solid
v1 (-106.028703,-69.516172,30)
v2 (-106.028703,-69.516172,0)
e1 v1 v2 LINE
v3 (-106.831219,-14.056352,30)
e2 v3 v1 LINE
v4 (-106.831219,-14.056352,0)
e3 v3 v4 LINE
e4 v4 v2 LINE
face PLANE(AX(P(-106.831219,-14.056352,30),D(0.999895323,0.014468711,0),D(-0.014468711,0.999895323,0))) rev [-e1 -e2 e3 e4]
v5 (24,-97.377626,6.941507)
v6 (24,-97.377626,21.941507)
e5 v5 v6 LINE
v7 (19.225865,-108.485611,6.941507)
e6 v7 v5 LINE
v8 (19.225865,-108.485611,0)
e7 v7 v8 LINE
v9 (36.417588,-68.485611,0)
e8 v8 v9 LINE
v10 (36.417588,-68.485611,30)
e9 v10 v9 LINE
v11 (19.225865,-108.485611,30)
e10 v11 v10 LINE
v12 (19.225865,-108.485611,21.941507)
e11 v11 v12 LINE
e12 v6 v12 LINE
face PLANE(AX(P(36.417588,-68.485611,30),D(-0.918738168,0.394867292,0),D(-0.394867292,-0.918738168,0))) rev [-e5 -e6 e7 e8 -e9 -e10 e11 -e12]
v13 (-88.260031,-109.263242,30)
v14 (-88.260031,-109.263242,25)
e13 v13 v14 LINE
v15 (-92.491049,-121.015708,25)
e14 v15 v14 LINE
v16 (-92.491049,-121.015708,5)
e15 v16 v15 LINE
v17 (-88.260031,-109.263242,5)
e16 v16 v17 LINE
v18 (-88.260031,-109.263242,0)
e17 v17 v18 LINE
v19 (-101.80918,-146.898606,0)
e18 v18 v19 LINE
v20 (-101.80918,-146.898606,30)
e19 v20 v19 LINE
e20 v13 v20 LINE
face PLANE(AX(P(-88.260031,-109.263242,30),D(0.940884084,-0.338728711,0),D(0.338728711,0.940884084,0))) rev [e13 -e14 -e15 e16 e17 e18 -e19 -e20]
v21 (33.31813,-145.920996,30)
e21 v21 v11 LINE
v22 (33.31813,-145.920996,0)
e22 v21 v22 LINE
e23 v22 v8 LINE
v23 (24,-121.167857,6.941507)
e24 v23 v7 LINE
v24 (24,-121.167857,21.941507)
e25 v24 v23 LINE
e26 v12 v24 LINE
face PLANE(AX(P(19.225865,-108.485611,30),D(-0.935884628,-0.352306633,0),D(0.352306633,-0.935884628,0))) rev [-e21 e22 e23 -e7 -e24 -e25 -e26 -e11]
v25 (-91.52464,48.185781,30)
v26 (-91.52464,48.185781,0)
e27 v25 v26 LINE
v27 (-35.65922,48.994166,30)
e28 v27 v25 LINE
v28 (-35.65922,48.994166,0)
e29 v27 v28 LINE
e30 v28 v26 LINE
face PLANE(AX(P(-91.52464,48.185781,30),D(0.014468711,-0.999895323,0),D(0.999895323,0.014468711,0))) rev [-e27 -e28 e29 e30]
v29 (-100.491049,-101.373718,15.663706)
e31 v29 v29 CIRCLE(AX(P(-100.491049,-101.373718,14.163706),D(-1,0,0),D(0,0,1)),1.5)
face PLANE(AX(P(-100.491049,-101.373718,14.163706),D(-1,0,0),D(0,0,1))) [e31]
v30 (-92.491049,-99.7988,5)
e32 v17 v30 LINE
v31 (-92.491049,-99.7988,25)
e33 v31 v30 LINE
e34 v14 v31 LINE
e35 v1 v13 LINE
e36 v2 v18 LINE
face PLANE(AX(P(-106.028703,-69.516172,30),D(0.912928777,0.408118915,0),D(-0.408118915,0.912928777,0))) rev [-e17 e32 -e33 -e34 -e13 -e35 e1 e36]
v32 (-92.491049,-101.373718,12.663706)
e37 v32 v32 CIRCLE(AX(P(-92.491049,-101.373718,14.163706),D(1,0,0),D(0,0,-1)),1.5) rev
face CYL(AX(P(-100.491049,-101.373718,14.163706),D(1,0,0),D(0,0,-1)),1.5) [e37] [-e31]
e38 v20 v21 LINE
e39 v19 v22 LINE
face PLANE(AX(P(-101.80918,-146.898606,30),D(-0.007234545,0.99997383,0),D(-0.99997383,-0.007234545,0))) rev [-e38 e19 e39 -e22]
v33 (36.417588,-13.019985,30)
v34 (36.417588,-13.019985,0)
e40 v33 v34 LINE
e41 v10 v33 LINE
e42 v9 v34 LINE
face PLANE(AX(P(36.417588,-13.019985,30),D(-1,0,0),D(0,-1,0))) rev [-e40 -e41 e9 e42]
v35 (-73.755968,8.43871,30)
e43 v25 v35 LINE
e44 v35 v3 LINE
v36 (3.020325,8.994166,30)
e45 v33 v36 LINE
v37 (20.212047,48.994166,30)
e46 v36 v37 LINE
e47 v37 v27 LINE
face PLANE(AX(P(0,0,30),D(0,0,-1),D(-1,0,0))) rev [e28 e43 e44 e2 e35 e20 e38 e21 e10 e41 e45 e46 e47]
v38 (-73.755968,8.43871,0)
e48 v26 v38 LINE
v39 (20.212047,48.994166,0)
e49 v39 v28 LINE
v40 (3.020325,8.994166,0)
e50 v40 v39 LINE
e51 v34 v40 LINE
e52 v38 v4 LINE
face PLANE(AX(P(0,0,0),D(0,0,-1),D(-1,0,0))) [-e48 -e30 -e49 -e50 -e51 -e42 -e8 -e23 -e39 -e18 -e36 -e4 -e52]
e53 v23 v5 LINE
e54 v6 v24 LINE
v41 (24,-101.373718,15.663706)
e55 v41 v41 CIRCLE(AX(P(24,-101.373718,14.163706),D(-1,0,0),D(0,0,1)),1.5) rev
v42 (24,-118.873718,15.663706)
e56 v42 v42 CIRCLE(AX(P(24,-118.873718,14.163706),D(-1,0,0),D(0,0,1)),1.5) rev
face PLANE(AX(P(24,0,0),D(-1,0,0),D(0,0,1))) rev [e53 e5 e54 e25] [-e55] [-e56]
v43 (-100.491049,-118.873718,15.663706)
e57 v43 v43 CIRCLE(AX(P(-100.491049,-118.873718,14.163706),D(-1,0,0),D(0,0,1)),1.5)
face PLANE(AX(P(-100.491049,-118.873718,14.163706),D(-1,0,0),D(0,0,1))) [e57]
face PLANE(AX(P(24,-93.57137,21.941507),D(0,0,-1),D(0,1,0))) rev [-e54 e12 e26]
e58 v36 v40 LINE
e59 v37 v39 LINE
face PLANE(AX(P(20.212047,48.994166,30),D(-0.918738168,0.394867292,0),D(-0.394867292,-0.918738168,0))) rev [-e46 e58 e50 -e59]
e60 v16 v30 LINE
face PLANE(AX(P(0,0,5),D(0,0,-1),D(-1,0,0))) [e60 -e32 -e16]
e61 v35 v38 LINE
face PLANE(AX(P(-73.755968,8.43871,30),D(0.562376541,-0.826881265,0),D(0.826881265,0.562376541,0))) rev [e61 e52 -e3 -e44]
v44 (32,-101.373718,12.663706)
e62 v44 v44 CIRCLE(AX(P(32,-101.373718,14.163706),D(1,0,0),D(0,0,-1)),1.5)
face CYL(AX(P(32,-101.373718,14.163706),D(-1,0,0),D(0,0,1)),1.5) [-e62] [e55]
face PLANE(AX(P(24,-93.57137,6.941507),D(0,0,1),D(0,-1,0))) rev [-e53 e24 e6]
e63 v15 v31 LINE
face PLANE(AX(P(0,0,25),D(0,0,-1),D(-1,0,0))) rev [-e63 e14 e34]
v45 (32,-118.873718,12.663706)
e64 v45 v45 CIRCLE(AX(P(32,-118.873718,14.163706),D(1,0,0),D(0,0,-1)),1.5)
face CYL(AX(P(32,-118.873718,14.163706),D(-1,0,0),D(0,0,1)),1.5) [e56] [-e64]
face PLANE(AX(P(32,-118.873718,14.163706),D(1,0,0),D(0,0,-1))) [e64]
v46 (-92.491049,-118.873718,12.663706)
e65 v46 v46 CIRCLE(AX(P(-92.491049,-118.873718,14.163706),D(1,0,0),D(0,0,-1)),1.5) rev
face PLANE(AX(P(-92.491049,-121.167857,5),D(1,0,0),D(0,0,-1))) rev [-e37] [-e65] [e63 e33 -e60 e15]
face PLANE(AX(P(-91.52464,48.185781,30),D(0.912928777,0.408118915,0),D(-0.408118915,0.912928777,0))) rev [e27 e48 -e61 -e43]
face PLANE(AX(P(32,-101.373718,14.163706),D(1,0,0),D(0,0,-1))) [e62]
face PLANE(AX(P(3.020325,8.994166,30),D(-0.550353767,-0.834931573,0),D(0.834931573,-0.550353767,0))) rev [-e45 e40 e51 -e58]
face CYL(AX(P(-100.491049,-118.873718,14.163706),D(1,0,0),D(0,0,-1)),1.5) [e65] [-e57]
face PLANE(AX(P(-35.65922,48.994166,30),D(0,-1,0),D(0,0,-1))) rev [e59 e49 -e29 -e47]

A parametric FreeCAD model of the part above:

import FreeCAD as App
import Part
import Sketcher
Q = App.Units.Quantity

doc = App.newDocument("Part")
params = doc.addObject("Spreadsheet::Sheet", "Params")
for row, (alias, value) in enumerate([
    ("sketch1_length", "40 mm"),
    ("pad1_length", "30 mm"),
    ("sketch2_width", "30 mm"),
    ("sketch2_height", "15 mm"),
    ("pad2_length", "24 mm"),
    ("pad3_length", "20 mm"),
    ("sketch4_diameter", "3 mm"),
    ("pad4_length", "16 mm"),
    ("sketch5_diameter", "3 mm"),
    ("pad5_length", "16 mm"),
], start=1):
    params.set(f"A{row}", alias)
    params.set(f"B{row}", "=" + value)
    params.setAlias(f"B{row}", alias)

body = doc.addObject("PartDesign::Body", "Body")

sketch1 = body.newObject("Sketcher::SketchObject", "Sketch")
sketch1.AttachmentSupport = (doc.getObject("XY_Plane"), [""])
sketch1.MapMode = "FlatFace"
sketch1.addGeometry([
    Part.LineSegment(App.Vector(20, 49, 0), App.Vector(-36, 49, 0)),
    Part.LineSegment(App.Vector(-36, 49, 0), App.Vector(-92, 48, 0)),
    Part.LineSegment(App.Vector(-92, 48, 0), App.Vector(-74, 8, 0)),
    Part.LineSegment(App.Vector(-74, 8, 0), App.Vector(-107, -14, 0)),
    Part.LineSegment(App.Vector(-107, -14, 0), App.Vector(-106, -70, 0)),
    Part.LineSegment(App.Vector(-106, -70, 0), App.Vector(-88, -109, 0)),
    Part.LineSegment(App.Vector(-88, -109, 0), App.Vector(-102, -147, 0)),
    Part.LineSegment(App.Vector(-102, -147, 0), App.Vector(33, -146, 0)),
    Part.LineSegment(App.Vector(33, -146, 0), App.Vector(19, -108, 0)),
    Part.LineSegment(App.Vector(19, -108, 0), App.Vector(36, -68, 0)),
    Part.LineSegment(App.Vector(36, -68, 0), App.Vector(36, -13, 0)),
    Part.LineSegment(App.Vector(36, -13, 0), App.Vector(3, 9, 0)),
    Part.LineSegment(App.Vector(3, 9, 0), App.Vector(20, 49, 0)),
], False)
sketch1.addConstraint([
    Sketcher.Constraint("Coincident", 0, 2, 1, 1),
    Sketcher.Constraint("Coincident", 1, 2, 2, 1),
    Sketcher.Constraint("Coincident", 2, 2, 3, 1),
    Sketcher.Constraint("Coincident", 3, 2, 4, 1),
    Sketcher.Constraint("Coincident", 4, 2, 5, 1),
    Sketcher.Constraint("Coincident", 5, 2, 6, 1),
    Sketcher.Constraint("Coincident", 6, 2, 7, 1),
    Sketcher.Constraint("Coincident", 7, 2, 8, 1),
    Sketcher.Constraint("Coincident", 8, 2, 9, 1),
    Sketcher.Constraint("Coincident", 9, 2, 10, 1),
    Sketcher.Constraint("Coincident", 10, 2, 11, 1),
    Sketcher.Constraint("Coincident", 11, 2, 12, 1),
    Sketcher.Constraint("Coincident", 12, 2, 0, 1),
    Sketcher.Constraint("Horizontal", 0),
    Sketcher.Constraint("Vertical", 10),
    Sketcher.Constraint("Perpendicular", 1, 4),
    Sketcher.Constraint("Parallel", 2, 5),
    Sketcher.Constraint("Parallel", 9, 12),
    Sketcher.Constraint("Equal", 2, 5),
    Sketcher.Constraint("Equal", 3, 6),
    Sketcher.Constraint("Equal", 6, 8),
    Sketcher.Constraint("Equal", 5, 9),
    Sketcher.Constraint("Equal", 8, 11),
    Sketcher.Constraint("Equal", 9, 12),
    Sketcher.Constraint("Distance", 3, Q("40 mm")),
    Sketcher.Constraint("DistanceY", 8, 2, 9, 2, Q("40 mm")),
    Sketcher.Constraint("DistanceX", 3, 2, 0, 2, Q("71.171998 mm")),
    Sketcher.Constraint("DistanceX", 2, 2, 7, 2, Q("107.074099 mm")),
    Sketcher.Constraint("DistanceX", 0, 2, 0, 1, Q("55.871268 mm")),
    Sketcher.Constraint("DistanceY", 10, 1, 10, 2, Q("55.465626 mm")),
    Sketcher.Constraint("DistanceX", 0, 2, -1, 1, Q("35.65922 mm")),
    Sketcher.Constraint("DistanceX", 1, 2, -1, 1, Q("91.52464 mm")),
    Sketcher.Constraint("DistanceY", -1, 1, 1, 2, Q("48.185781 mm")),
    Sketcher.Constraint("DistanceX", 2, 2, -1, 1, Q("73.755968 mm")),
    Sketcher.Constraint("DistanceY", -1, 1, 2, 2, Q("8.43871 mm")),
    Sketcher.Constraint("DistanceY", 4, 2, -1, 1, Q("69.516172 mm")),
    Sketcher.Constraint("DistanceX", 5, 2, -1, 1, Q("88.260031 mm")),
    Sketcher.Constraint("DistanceX", 6, 2, -1, 1, Q("101.80918 mm")),
    Sketcher.Constraint("DistanceY", 8, 2, -1, 1, Q("108.485611 mm")),
])
sketch1.setExpression("Constraints[24]", "Params.sketch1_length")
pad1 = body.newObject("PartDesign::Pad", "Pad")
pad1.Profile = sketch1
pad1.setExpression("Length", "Params.pad1_length")

sketch2 = body.newObject("Sketcher::SketchObject", "Sketch001")
sketch2.AttachmentSupport = (doc.getObject("YZ_Plane"), [""])
sketch2.MapMode = "FlatFace"
sketch2.addGeometry([
    Part.LineSegment(App.Vector(-94, 22, 0), App.Vector(-124, 22, 0)),
    Part.LineSegment(App.Vector(-124, 22, 0), App.Vector(-124, 7, 0)),
    Part.LineSegment(App.Vector(-124, 7, 0), App.Vector(-94, 7, 0)),
    Part.LineSegment(App.Vector(-94, 7, 0), App.Vector(-94, 22, 0)),
], False)
sketch2.addConstraint([
    Sketcher.Constraint("Coincident", 0, 2, 1, 1),
    Sketcher.Constraint("Coincident", 1, 2, 2, 1),
    Sketcher.Constraint("Coincident", 2, 2, 3, 1),
    Sketcher.Constraint("Coincident", 3, 2, 0, 1),
    Sketcher.Constraint("Horizontal", 0),
    Sketcher.Constraint("Vertical", 1),
    Sketcher.Constraint("Horizontal", 2),
    Sketcher.Constraint("Vertical", 3),
    Sketcher.Constraint("DistanceX", 0, 2, 0, 1, Q("30 mm")),
    Sketcher.Constraint("DistanceY", 1, 2, 1, 1, Q("15 mm")),
    Sketcher.Constraint("DistanceX", 0, 2, -1, 1, Q("123.57137 mm")),
    Sketcher.Constraint("DistanceY", -1, 1, 0, 2, Q("21.941507 mm")),
])
sketch2.setExpression("Constraints[8]", "Params.sketch2_width")
sketch2.setExpression("Constraints[9]", "Params.sketch2_height")
pad2 = body.newObject("PartDesign::Pad", "Pad001")
pad2.Profile = sketch2
pad2.setExpression("Length", "Params.pad2_length")

sketch3 = body.newObject("Sketcher::SketchObject", "Sketch002")
sketch3.AttachmentSupport = (doc.getObject("XY_Plane"), [""])
sketch3.MapMode = "FlatFace"
sketch3.AttachmentOffset = App.Placement(App.Vector(0, 0, 15), App.Rotation())
sketch3.addGeometry([
    Part.LineSegment(App.Vector(-92, -97, 0), App.Vector(-88, -108, 0)),
    Part.LineSegment(App.Vector(-88, -108, 0), App.Vector(-92, -121, 0)),
    Part.LineSegment(App.Vector(-92, -121, 0), App.Vector(-92, -97, 0)),
], False)
sketch3.addConstraint([
    Sketcher.Constraint("Coincident", 0, 2, 1, 1),
    Sketcher.Constraint("Coincident", 1, 2, 2, 1),
    Sketcher.Constraint("Coincident", 2, 2, 0, 1),
    Sketcher.Constraint("Vertical", 2),
    Sketcher.Constraint("DistanceY", 2, 1, 2, 2, Q("23.790231 mm")),
    Sketcher.Constraint("Distance", 0, Q("12.090479 mm")),
    Sketcher.Constraint("Distance", 1, Q("13.551079 mm")),
    Sketcher.Constraint("DistanceY", 0, 2, -1, 1, Q("108.485611 mm")),
    Sketcher.Constraint("DistanceX", 1, 2, -1, 1, Q("92.491049 mm")),
])
pad3 = body.newObject("PartDesign::Pad", "Pad002")
pad3.Profile = sketch3
pad3.setExpression("Length", "Params.pad3_length")
pad3.Midplane = True

sketch4 = body.newObject("Sketcher::SketchObject", "Sketch003")
sketch4.AttachmentSupport = (doc.getObject("YZ_Plane"), [""])
sketch4.MapMode = "FlatFace"
sketch4.AttachmentOffset = App.Placement(App.Vector(0, 0, -92.491049), App.Rotation())
sketch4.addGeometry([
    Part.Circle(App.Vector(-101.4, 14.2, 0), App.Vector(0, 0, 1), 1.5),
    Part.Circle(App.Vector(-118.9, 14.2, 0), App.Vector(0, 0, 1), 1.5),
], False)
sketch4.addConstraint([
    Sketcher.Constraint("Equal", 0, 1),
    Sketcher.Constraint("Horizontal", 0, 3, 1, 3),
    Sketcher.Constraint("Diameter", 0, Q("3 mm")),
    Sketcher.Constraint("DistanceX", 1, 3, 0, 3, Q("17.5 mm")),
    Sketcher.Constraint("DistanceX", 0, 3, -1, 1, Q("101.373718 mm")),
    Sketcher.Constraint("DistanceY", -1, 1, 0, 3, Q("14.163706 mm")),
])
sketch4.setExpression("Constraints[2]", "Params.sketch4_diameter")
pad4 = body.newObject("PartDesign::Pad", "Pad003")
pad4.Profile = sketch4
pad4.setExpression("Length", "Params.pad4_length")
pad4.Midplane = True

sketch5 = body.newObject("Sketcher::SketchObject", "Sketch004")
sketch5.AttachmentSupport = (doc.getObject("YZ_Plane"), [""])
sketch5.MapMode = "FlatFace"
sketch5.AttachmentOffset = App.Placement(App.Vector(0, 0, 24), App.Rotation())
sketch5.addGeometry([
    Part.Circle(App.Vector(-118.9, 14.2, 0), App.Vector(0, 0, 1), 1.5),
    Part.Circle(App.Vector(-101.4, 14.2, 0), App.Vector(0, 0, 1), 1.5),
], False)
sketch5.addConstraint([
    Sketcher.Constraint("Equal", 0, 1),
    Sketcher.Constraint("Horizontal", 0, 3, 1, 3),
    Sketcher.Constraint("Diameter", 0, Q("3 mm")),
    Sketcher.Constraint("DistanceX", 0, 3, 1, 3, Q("17.5 mm")),
    Sketcher.Constraint("DistanceX", 0, 3, -1, 1, Q("118.873718 mm")),
    Sketcher.Constraint("DistanceY", -1, 1, 0, 3, Q("14.163706 mm")),
])
sketch5.setExpression("Constraints[2]", "Params.sketch5_diameter")
pad5 = body.newObject("PartDesign::Pad", "Pad004")
pad5.Profile = sketch5
pad5.setExpression("Length", "Params.pad5_length")
pad5.Midplane = True

doc.recompute()
